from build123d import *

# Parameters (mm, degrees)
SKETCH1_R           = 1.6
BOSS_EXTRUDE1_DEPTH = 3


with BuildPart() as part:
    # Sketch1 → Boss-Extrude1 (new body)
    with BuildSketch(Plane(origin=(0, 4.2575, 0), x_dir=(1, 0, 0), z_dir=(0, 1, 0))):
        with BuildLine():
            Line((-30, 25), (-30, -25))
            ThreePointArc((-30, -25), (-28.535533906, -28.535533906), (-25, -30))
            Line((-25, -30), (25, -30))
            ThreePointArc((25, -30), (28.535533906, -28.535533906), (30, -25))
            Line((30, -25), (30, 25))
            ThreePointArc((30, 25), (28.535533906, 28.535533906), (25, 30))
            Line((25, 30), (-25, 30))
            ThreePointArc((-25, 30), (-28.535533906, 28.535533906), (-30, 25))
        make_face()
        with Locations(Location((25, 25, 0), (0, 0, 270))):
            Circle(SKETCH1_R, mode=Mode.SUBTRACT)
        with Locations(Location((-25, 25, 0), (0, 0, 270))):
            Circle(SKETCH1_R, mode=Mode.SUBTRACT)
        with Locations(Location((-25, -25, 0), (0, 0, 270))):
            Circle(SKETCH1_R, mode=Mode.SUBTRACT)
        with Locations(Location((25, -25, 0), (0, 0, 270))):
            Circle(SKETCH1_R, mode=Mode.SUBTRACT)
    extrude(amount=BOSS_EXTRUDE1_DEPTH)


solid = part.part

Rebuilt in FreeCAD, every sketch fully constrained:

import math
import FreeCAD as App
import Part
import Sketcher
from FreeCAD import Vector
Q = App.Units.Quantity

doc = App.newDocument("Part")
body = doc.addObject("PartDesign::Body", "Body")

sketch1 = doc.addObject("Sketcher::SketchObject", "Sketch")
body.addObject(sketch1)
sketch1.AttachmentSupport = (doc.XZ_Plane, [""])
sketch1.MapMode = "FlatFace"
sketch1.AttachmentOffset = App.Placement(Vector(0, 0, -4.2575), App.Rotation())
sketch1.addGeometry([
    Part.LineSegment(Vector(-30, -25, 0), Vector(-30, 25, 0)),
    Part.ArcOfCircle(Part.Circle(Vector(-25, 25, 0), Vector(0, 0, 1), 5), math.radians(90), math.radians(180)),
    Part.LineSegment(Vector(-25, 30, 0), Vector(25, 30, 0)),
    Part.ArcOfCircle(Part.Circle(Vector(25, 25, 0), Vector(0, 0, 1), 5), math.radians(0), math.radians(90)),
    Part.LineSegment(Vector(30, 25, 0), Vector(30, -25, 0)),
    Part.ArcOfCircle(Part.Circle(Vector(25, -25, 0), Vector(0, 0, 1), 5), math.radians(-90), math.radians(0)),
    Part.LineSegment(Vector(25, -30, 0), Vector(-25, -30, 0)),
    Part.ArcOfCircle(Part.Circle(Vector(-25, -25, 0), Vector(0, 0, 1), 5), math.radians(180), math.radians(270)),
    Part.Circle(Vector(-25, 25, 0), Vector(0, 0, 1), 1.6),
    Part.Circle(Vector(25, 25, 0), Vector(0, 0, 1), 1.6),
    Part.Circle(Vector(-25, -25, 0), Vector(0, 0, 1), 1.6),
    Part.Circle(Vector(25, -25, 0), Vector(0, 0, 1), 1.6),
], False)
sketch1.addConstraint([
    Sketcher.Constraint("Tangent", 0, 2, 1, 2),
    Sketcher.Constraint("Tangent", 1, 1, 2, 1),
    Sketcher.Constraint("Tangent", 2, 2, 3, 2),
    Sketcher.Constraint("Tangent", 3, 1, 4, 1),
    Sketcher.Constraint("Tangent", 4, 2, 5, 2),
    Sketcher.Constraint("Tangent", 5, 1, 6, 1),
    Sketcher.Constraint("Tangent", 6, 2, 7, 2),
    Sketcher.Constraint("Tangent", 7, 1, 0, 1),
    Sketcher.Constraint("Vertical", 0),
    Sketcher.Constraint("Horizontal", 2),
    Sketcher.Constraint("Vertical", 4),
    Sketcher.Constraint("Horizontal", 6),
    Sketcher.Constraint("Coincident", 8, 3, 1, 3),
    Sketcher.Constraint("Coincident", 9, 3, 3, 3),
    Sketcher.Constraint("Coincident", 10, 3, 7, 3),
    Sketcher.Constraint("Coincident", 11, 3, 5, 3),
    Sketcher.Constraint("Equal", 1, 3),
    Sketcher.Constraint("Equal", 3, 5),
    Sketcher.Constraint("Equal", 5, 7),
    Sketcher.Constraint("Equal", 8, 9),
    Sketcher.Constraint("Equal", 9, 10),
    Sketcher.Constraint("Equal", 10, 11),
    Sketcher.Constraint("Symmetric", 1, 3, 5, 3, -1, 1),
    Sketcher.Constraint("Equal", 6, 0),
    Sketcher.Constraint("Radius", 1, Q("5 mm")),
    Sketcher.Constraint("Diameter", 8, Q("3.2 mm")),
    Sketcher.Constraint("DistanceX", 2, 1, 2, 2, Q("50 mm")),
])
pad1 = doc.addObject("PartDesign::Pad", "Pad")
body.addObject(pad1)
pad1.Profile = sketch1
pad1.Length = 3
pad1.Reversed = True

doc.recompute()
